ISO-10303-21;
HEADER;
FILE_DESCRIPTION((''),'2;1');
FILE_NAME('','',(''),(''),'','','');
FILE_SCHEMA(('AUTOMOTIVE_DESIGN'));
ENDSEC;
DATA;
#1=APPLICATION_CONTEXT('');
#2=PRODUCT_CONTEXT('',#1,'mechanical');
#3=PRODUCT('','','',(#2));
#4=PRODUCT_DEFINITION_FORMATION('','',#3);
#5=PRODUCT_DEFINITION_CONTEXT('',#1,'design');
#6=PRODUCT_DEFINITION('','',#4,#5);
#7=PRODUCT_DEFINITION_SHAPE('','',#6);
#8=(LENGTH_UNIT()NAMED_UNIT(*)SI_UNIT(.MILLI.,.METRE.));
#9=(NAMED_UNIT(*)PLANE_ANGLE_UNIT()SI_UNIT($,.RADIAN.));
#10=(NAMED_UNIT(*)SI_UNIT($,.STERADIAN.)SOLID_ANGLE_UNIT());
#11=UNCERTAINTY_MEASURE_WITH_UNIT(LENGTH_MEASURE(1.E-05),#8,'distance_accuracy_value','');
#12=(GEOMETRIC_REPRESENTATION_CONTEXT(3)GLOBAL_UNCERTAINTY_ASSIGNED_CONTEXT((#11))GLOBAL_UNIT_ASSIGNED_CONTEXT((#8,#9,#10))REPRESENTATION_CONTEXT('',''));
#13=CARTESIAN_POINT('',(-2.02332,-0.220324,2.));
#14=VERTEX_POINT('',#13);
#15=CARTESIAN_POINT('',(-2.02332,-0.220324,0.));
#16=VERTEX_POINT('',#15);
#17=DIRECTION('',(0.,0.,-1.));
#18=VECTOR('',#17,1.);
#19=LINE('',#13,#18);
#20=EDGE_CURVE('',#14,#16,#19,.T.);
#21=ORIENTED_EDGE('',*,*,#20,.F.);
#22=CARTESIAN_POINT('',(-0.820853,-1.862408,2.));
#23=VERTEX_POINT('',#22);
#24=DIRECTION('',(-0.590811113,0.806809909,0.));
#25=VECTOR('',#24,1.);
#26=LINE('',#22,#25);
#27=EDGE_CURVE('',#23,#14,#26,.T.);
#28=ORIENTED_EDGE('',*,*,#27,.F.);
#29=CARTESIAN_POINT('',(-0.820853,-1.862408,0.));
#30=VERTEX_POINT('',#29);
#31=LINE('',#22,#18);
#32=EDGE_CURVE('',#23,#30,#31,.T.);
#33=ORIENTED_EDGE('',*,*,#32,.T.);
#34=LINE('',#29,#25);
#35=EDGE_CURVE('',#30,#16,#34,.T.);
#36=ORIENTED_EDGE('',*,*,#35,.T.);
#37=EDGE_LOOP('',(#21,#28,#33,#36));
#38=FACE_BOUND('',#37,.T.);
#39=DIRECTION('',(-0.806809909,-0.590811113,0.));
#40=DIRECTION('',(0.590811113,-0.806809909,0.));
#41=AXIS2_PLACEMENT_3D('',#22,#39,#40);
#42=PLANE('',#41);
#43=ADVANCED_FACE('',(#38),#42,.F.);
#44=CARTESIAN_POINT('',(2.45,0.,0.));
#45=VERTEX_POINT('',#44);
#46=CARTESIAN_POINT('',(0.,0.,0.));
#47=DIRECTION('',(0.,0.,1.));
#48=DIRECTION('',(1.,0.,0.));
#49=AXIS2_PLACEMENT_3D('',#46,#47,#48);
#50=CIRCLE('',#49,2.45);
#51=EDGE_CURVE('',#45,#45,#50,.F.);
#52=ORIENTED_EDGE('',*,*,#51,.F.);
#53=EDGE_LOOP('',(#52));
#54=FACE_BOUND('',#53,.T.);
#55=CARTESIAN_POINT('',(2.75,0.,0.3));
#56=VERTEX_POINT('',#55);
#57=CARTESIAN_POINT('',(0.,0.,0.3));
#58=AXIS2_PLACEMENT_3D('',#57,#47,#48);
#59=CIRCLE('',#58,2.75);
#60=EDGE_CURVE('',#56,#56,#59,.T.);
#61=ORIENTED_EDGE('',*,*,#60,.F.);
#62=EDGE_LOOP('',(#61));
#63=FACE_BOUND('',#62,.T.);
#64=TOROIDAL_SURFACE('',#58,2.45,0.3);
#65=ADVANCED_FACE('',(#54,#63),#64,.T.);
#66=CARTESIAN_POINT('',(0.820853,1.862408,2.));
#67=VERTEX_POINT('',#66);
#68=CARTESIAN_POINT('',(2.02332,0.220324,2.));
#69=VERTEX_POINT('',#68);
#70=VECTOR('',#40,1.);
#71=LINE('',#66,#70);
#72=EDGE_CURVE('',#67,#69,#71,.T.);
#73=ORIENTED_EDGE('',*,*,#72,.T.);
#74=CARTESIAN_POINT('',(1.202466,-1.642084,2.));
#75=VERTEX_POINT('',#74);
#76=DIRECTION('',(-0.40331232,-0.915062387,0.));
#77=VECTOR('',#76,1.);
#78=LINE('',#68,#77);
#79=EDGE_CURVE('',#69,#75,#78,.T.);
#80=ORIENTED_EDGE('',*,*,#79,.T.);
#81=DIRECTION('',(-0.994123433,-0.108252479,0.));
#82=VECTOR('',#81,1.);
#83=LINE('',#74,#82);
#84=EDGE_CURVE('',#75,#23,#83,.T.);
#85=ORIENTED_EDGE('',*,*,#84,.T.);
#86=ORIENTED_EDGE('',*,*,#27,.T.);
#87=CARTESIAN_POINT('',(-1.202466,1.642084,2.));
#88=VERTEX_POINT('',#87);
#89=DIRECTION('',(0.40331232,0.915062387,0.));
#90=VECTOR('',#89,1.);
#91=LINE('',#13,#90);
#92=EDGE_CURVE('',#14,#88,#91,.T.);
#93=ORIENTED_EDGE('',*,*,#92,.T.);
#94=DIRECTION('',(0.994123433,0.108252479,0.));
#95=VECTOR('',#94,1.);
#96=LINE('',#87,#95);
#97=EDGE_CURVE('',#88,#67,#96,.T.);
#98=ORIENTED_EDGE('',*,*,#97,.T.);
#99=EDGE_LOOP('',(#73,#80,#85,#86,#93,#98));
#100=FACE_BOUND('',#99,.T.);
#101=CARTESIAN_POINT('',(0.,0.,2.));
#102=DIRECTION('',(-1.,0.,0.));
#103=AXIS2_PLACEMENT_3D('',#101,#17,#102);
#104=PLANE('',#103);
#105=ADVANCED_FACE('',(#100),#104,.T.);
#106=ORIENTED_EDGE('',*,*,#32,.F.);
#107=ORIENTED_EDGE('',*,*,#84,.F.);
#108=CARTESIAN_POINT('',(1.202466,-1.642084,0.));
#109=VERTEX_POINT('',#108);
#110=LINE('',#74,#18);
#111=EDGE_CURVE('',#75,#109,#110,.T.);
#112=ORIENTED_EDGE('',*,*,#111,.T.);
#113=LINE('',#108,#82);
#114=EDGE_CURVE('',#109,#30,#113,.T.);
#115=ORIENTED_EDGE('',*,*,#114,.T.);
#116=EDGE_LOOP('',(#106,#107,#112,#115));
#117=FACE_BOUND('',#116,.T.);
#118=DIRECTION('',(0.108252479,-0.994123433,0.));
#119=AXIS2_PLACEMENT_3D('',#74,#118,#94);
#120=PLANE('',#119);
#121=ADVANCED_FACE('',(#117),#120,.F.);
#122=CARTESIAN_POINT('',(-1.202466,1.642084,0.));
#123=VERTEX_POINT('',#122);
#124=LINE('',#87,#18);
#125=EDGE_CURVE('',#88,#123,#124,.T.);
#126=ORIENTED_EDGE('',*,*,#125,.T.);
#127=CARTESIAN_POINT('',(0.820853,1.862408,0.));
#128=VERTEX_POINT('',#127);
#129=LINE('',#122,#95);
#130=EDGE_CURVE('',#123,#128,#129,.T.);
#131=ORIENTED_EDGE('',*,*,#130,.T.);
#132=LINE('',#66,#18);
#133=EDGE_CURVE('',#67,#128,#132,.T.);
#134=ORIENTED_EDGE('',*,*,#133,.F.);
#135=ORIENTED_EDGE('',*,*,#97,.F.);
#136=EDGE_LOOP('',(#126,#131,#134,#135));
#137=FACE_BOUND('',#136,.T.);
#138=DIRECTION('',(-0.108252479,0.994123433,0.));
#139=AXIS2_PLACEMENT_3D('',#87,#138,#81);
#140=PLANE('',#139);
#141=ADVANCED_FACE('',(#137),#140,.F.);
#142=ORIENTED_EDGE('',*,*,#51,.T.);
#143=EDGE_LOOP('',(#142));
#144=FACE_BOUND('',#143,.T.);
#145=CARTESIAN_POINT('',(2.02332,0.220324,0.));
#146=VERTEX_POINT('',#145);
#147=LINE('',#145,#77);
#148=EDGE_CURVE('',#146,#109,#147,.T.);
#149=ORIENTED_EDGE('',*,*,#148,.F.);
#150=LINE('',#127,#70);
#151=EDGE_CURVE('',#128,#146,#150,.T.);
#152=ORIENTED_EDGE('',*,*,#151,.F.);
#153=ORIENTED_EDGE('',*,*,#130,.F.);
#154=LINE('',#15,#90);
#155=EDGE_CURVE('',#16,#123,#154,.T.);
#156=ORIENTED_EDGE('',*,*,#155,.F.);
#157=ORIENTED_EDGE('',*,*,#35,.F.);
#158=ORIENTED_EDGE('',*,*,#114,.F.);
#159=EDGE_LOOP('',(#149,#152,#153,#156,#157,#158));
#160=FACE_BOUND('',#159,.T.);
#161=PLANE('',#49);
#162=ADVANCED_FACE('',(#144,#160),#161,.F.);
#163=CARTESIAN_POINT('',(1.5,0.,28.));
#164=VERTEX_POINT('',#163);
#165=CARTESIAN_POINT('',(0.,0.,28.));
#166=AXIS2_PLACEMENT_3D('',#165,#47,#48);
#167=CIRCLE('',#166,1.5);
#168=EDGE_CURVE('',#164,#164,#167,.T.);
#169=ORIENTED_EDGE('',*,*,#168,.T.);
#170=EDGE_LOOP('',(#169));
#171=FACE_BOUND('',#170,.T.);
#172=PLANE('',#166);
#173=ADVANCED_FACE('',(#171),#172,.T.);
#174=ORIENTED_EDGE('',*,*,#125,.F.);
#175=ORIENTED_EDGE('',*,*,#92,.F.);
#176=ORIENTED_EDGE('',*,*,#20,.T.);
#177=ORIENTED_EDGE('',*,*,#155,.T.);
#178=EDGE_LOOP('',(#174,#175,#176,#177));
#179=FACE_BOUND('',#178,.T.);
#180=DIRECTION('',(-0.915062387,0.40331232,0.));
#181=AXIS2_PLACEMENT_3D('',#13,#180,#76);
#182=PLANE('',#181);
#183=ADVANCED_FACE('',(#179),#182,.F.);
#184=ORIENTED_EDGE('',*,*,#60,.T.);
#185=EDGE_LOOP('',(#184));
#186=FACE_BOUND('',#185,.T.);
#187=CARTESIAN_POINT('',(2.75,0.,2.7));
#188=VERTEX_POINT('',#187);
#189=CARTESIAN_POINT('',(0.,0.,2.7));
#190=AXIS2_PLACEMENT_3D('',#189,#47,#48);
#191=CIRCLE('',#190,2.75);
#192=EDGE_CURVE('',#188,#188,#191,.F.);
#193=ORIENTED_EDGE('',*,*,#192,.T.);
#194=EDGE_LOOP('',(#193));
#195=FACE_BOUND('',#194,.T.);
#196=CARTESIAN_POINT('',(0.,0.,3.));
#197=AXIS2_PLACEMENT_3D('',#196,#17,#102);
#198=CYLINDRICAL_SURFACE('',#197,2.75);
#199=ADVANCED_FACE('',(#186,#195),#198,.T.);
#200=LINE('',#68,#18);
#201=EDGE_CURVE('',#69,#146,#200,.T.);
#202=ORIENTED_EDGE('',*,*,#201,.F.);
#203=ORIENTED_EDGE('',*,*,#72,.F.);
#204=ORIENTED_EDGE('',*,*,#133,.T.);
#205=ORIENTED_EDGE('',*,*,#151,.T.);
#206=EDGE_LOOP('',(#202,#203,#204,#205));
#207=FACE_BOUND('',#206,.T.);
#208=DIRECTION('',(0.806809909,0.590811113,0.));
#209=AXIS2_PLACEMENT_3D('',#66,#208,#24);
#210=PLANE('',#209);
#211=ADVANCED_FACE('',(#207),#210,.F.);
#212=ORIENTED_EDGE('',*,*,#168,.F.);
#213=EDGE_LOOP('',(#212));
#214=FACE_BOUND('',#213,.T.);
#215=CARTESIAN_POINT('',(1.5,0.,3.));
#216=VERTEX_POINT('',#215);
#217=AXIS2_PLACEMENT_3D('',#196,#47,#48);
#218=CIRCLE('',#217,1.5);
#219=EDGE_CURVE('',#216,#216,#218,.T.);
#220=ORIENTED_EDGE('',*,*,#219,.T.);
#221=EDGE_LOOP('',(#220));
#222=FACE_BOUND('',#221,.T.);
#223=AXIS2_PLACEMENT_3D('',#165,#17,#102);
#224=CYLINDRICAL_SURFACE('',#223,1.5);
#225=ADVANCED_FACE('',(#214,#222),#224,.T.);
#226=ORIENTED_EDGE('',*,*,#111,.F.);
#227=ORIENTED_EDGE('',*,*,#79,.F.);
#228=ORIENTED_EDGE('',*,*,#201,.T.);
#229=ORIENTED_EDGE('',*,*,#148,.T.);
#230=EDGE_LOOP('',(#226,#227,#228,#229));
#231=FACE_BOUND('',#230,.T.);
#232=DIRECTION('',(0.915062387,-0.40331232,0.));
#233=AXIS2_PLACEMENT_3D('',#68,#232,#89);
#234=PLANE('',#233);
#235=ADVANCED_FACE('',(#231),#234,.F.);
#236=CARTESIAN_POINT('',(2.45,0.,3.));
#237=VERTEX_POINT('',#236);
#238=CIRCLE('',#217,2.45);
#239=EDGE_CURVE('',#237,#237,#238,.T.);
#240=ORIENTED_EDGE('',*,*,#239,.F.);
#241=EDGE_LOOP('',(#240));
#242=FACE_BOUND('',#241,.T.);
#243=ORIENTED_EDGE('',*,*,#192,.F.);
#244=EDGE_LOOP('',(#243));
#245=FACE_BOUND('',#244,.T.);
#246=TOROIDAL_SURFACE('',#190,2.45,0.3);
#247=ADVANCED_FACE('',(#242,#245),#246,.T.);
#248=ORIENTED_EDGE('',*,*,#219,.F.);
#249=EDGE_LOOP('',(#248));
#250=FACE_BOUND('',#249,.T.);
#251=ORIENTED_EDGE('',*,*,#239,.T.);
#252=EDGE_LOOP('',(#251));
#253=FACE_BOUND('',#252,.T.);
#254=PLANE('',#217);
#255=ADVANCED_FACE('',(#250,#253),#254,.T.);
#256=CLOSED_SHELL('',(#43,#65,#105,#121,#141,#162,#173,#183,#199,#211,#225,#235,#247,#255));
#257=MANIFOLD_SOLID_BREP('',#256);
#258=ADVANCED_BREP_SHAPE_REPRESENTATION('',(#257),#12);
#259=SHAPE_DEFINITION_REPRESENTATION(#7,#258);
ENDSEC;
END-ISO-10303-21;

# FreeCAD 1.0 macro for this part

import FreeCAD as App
import Part
import Sketcher
from FreeCAD import Vector
Q = App.Units.Quantity


def edges_at(feature, points):
    """Names of the edges that pass closest to the given points."""
    edges = feature.Shape.Edges
    near = lambda p: min(range(len(edges)), key=lambda i: edges[i].distToShape(Part.Vertex(*p))[0])
    return sorted({f"Edge{near(p) + 1}" for p in points})


def add_polygon(sketch, points):
    """Adds a closed chain of lines whose ends are joined by coincident constraints."""
    first, n = sketch.GeometryCount, len(points)
    for a, b in zip(points, points[1:] + points[:1]):
        sketch.addGeometry(Part.LineSegment(App.Vector(*a, 0), App.Vector(*b, 0)), False)
    for i in range(n):
        sketch.addConstraint(Sketcher.Constraint("Coincident", first + i, 2, first + (i + 1) % n, 1))

doc = App.newDocument("Part")
body = doc.addObject("PartDesign::Body", "Body")

sketch1 = body.newObject("Sketcher::SketchObject", "Sketch")
sketch1.AttachmentSupport = (doc.getObject("XY_Plane"), [""])
sketch1.MapMode = "FlatFace"
sketch1.addGeometry(Part.Circle(Vector(0, 0, 0), Vector(0, 0, 1), 2.75), False)
sketch1.addConstraint(Sketcher.Constraint("Coincident", 0, 3, -1, 1))
sketch1.addConstraint(Sketcher.Constraint("Diameter", 0, Q("5.5 mm")))
pad1 = body.newObject("PartDesign::Pad", "Pad")
pad1.Profile = sketch1
pad1.Length = 3

sketch2 = body.newObject("Sketcher::SketchObject", "Sketch001")
sketch2.AttachmentSupport = (doc.getObject("XY_Plane"), [""])
sketch2.MapMode = "FlatFace"
sketch2.AttachmentOffset = App.Placement(Vector(0, 0, 3), App.Rotation())
sketch2.addGeometry(Part.Circle(Vector(0, 0, 0), Vector(0, 0, 1), 1.5), False)
sketch2.addConstraint(Sketcher.Constraint("Coincident", 0, 3, -1, 1))
sketch2.addConstraint(Sketcher.Constraint("Diameter", 0, Q("3 mm")))
pad2 = body.newObject("PartDesign::Pad", "Pad001")
pad2.Profile = sketch2
pad2.Length = 25
doc.recompute()

fillet = body.newObject("PartDesign::Fillet", "Fillet")
fillet.Base = (pad2, edges_at(pad2, [(-2.75, 0, 0), (-2.75, 0, 3)]))
fillet.Radius = 0.3

sketch3 = body.newObject("Sketcher::SketchObject", "Sketch002")
sketch3.AttachmentSupport = (doc.getObject("XY_Plane"), [""])
sketch3.MapMode = "FlatFace"
add_polygon(sketch3, [(0.820853, 1.862408), (2.02332, 0.220324), (1.202466, -1.642084), (-0.820853, -1.862408), (-2.02332, -0.220324), (-1.202466, 1.642084)])
sketch3.addConstraint(Sketcher.Constraint("Symmetric", 0, 2, 3, 2, -1, 1))
sketch3.addConstraint(Sketcher.Constraint("Symmetric", 1, 2, 4, 2, -1, 1))
sketch3.addConstraint(Sketcher.Constraint("Symmetric", 2, 2, 5, 2, -1, 1))
sketch3.addConstraint(Sketcher.Constraint("Equal", 0, 1))
sketch3.addConstraint(Sketcher.Constraint("Equal", 1, 2))
sketch3.addConstraint(Sketcher.Constraint("Distance", 0, Q("2.03528 mm")))
sketch3.addConstraint(Sketcher.Constraint("DistanceX", -1, 1, 0, 2, Q("2.02332 mm")))
sketch3.addConstraint(Sketcher.Constraint("DistanceY", 2, 2, -1, 1, Q("1.862408 mm")))
sketch3.addConstraint(Sketcher.Constraint("DistanceY", 1, 2, 0, 2, Q("1.862408 mm")))
pocket1 = body.newObject("PartDesign::Pocket", "Pocket")
pocket1.Profile = sketch3
pocket1.Length = 2
pocket1.Reversed = True

doc.recompute()
